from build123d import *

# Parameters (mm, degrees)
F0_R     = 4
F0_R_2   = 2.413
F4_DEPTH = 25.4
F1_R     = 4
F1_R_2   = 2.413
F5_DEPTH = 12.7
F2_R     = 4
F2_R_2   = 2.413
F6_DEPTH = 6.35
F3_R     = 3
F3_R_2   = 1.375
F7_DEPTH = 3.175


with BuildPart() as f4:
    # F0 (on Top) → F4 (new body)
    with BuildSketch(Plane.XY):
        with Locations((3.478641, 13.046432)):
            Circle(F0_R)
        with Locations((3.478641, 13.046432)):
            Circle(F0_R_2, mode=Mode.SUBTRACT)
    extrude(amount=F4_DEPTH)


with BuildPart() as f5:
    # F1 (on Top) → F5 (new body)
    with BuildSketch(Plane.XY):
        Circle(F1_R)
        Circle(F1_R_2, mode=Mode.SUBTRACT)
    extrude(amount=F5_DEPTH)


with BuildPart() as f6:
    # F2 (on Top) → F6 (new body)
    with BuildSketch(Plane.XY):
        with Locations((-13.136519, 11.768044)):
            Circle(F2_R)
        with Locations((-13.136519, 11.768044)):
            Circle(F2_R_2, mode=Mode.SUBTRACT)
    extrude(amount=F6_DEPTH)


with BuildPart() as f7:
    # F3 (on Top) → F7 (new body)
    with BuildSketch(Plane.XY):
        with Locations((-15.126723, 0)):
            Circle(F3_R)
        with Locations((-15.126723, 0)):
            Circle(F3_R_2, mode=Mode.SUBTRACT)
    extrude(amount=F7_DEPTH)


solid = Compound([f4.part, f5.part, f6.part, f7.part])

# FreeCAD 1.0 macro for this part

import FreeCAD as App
import Part
import Sketcher

V = App.Vector
Q = App.Units.Quantity

doc = App.newDocument("Part")
params = doc.addObject("Spreadsheet::Sheet", "Params")
for row, (alias, value) in enumerate([
    ("sketch1_diameter", "0.19 in"),
    ("pad1_length", "1 in"),
    ("sketch2_diameter", "0.19 in"),
    ("pad2_length", "0.5 in"),
    ("sketch3_diameter", "0.19 in"),
    ("pad3_length", "0.25 in"),
    ("pad4_length", "0.125 in"),
], start=1):
    params.set(f"A{row}", alias)
    params.set(f"B{row}", "=" + value)
    params.setAlias(f"B{row}", alias)

body = doc.addObject("PartDesign::Body", "Body")

# Sketch on XY plane
sketch1 = body.newObject("Sketcher::SketchObject", "Sketch")
sketch1.AttachmentSupport = (doc.getObject("XY_Plane"), [""])
sketch1.MapMode = "FlatFace"
sketch1.addGeometry(Part.Circle(V(3.5, 13, 0), V(0, 0, 1), 4), False)
sketch1.addGeometry(Part.Circle(V(3.5, 13, 0), V(0, 0, 1), 2.4), False)
sketch1.addConstraint(Sketcher.Constraint("Coincident", 1, 3, 0, 3))
sketch1.addConstraint(Sketcher.Constraint("Diameter", 1, Q("0.19 in")))
sketch1.addConstraint(Sketcher.Constraint("Diameter", 0, Q("8 mm")))
sketch1.addConstraint(Sketcher.Constraint("DistanceX", -1, 1, 0, 3, Q("3.478641 mm")))
sketch1.addConstraint(Sketcher.Constraint("DistanceY", -1, 1, 0, 3, Q("13.046432 mm")))
sketch1.setExpression("Constraints[1]", "Params.sketch1_diameter")
pad1 = body.newObject("PartDesign::Pad", "Pad")
pad1.Profile = sketch1
pad1.setExpression("Length", "Params.pad1_length")
body2 = doc.addObject("PartDesign::Body", "Body001")

# Sketch on XY plane
sketch2 = body2.newObject("Sketcher::SketchObject", "Sketch001")
sketch2.AttachmentSupport = (doc.getObject("XY_Plane001"), [""])
sketch2.MapMode = "FlatFace"
sketch2.addGeometry(Part.Circle(V(0, 0, 0), V(0, 0, 1), 4), False)
sketch2.addGeometry(Part.Circle(V(0, 0, 0), V(0, 0, 1), 2.4), False)
sketch2.addConstraint(Sketcher.Constraint("Coincident", 0, 3, -1, 1))
sketch2.addConstraint(Sketcher.Constraint("Coincident", 1, 3, -1, 1))
sketch2.addConstraint(Sketcher.Constraint("Diameter", 1, Q("0.19 in")))
sketch2.addConstraint(Sketcher.Constraint("Diameter", 0, Q("8 mm")))
sketch2.setExpression("Constraints[2]", "Params.sketch2_diameter")
pad2 = body2.newObject("PartDesign::Pad", "Pad001")
pad2.Profile = sketch2
pad2.setExpression("Length", "Params.pad2_length")
body3 = doc.addObject("PartDesign::Body", "Body002")

# Sketch on XY plane
sketch3 = body3.newObject("Sketcher::SketchObject", "Sketch002")
sketch3.AttachmentSupport = (doc.getObject("XY_Plane002"), [""])
sketch3.MapMode = "FlatFace"
sketch3.addGeometry(Part.Circle(V(-13.1, 11.8, 0), V(0, 0, 1), 4), False)
sketch3.addGeometry(Part.Circle(V(-13.1, 11.8, 0), V(0, 0, 1), 2.4), False)
sketch3.addConstraint(Sketcher.Constraint("Coincident", 1, 3, 0, 3))
sketch3.addConstraint(Sketcher.Constraint("Diameter", 1, Q("0.19 in")))
sketch3.addConstraint(Sketcher.Constraint("Diameter", 0, Q("8 mm")))
sketch3.addConstraint(Sketcher.Constraint("DistanceX", 0, 3, -1, 1, Q("13.136519 mm")))
sketch3.addConstraint(Sketcher.Constraint("DistanceY", -1, 1, 0, 3, Q("11.768044 mm")))
sketch3.setExpression("Constraints[1]", "Params.sketch3_diameter")
pad3 = body3.newObject("PartDesign::Pad", "Pad002")
pad3.Profile = sketch3
pad3.setExpression("Length", "Params.pad3_length")
body4 = doc.addObject("PartDesign::Body", "Body003")

# Sketch on XY plane
sketch4 = body4.newObject("Sketcher::SketchObject", "Sketch003")
sketch4.AttachmentSupport = (doc.getObject("XY_Plane003"), [""])
sketch4.MapMode = "FlatFace"
sketch4.addGeometry(Part.Circle(V(-15.1, 0, 0), V(0, 0, 1), 3), False)
sketch4.addGeometry(Part.Circle(V(-15.1, 0, 0), V(0, 0, 1), 1.4), False)
sketch4.addConstraint(Sketcher.Constraint("Coincident", 1, 3, 0, 3))
sketch4.addConstraint(Sketcher.Constraint("PointOnObject", 0, 3, -1))
sketch4.addConstraint(Sketcher.Constraint("Diameter", 0, Q("6 mm")))
sketch4.addConstraint(Sketcher.Constraint("Diameter", 1, Q("2.75 mm")))
sketch4.addConstraint(Sketcher.Constraint("DistanceX", 0, 3, -1, 1, Q("15.126723 mm")))
pad4 = body4.newObject("PartDesign::Pad", "Pad003")
pad4.Profile = sketch4
pad4.setExpression("Length", "Params.pad4_length")

doc.recompute()
